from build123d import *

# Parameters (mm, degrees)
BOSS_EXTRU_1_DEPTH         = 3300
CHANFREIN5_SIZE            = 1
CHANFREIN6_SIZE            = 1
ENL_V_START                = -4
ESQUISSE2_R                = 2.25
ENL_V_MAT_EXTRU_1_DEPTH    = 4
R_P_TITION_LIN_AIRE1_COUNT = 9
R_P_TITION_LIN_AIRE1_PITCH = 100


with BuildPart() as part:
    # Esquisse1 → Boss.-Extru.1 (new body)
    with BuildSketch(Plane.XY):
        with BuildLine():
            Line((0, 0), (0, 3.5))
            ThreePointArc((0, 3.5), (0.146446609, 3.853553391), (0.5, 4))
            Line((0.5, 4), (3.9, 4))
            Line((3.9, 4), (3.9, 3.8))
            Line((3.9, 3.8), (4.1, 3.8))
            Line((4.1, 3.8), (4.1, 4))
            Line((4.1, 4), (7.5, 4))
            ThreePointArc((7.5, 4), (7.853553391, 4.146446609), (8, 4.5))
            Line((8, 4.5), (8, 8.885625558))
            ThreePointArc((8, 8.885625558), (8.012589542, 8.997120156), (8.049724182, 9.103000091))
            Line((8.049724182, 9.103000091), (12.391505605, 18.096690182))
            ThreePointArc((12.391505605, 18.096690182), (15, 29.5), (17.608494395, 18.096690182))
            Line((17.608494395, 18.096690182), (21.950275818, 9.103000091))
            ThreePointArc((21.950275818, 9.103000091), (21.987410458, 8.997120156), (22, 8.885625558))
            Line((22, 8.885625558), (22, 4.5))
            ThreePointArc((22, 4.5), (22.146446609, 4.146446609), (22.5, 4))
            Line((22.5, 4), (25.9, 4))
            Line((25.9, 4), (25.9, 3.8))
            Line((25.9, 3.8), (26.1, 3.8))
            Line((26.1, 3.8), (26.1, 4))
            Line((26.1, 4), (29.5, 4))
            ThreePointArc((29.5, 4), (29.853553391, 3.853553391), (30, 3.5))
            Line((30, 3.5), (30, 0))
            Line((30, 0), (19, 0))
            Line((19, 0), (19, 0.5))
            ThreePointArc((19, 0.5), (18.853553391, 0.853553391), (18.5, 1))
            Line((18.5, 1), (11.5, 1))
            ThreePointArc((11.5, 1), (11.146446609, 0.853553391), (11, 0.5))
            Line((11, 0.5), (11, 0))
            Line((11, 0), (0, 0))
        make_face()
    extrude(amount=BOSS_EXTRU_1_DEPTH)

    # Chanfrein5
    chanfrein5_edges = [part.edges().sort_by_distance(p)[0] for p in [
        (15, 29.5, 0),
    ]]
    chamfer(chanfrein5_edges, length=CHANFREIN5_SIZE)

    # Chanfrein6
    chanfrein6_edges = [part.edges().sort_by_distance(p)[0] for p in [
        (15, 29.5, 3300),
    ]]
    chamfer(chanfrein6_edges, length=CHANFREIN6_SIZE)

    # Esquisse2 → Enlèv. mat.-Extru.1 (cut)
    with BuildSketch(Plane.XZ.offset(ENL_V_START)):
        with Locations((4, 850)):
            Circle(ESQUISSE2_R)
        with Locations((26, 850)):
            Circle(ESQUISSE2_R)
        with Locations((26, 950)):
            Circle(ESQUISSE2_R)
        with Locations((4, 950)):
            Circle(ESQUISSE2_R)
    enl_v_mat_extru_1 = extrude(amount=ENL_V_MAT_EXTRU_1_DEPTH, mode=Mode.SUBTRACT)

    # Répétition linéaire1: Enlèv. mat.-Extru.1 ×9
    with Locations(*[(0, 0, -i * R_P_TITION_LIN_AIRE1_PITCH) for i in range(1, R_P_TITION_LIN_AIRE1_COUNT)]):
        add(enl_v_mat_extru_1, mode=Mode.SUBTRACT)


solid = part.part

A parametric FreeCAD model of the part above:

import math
import FreeCAD as App
import Part
import Sketcher
Q = App.Units.Quantity


def edges_at(feature, points):
    """Names of the edges that pass closest to the given points."""
    edges = feature.Shape.Edges
    near = lambda p: min(range(len(edges)), key=lambda i: edges[i].distToShape(Part.Vertex(*p))[0])
    return sorted({f"Edge{near(p) + 1}" for p in points})

doc = App.newDocument("Part")
body = doc.addObject("PartDesign::Body", "Body")

sketch1 = doc.addObject("Sketcher::SketchObject", "Sketch")
body.addObject(sketch1)
sketch1.AttachmentSupport = (doc.XY_Plane, [""])
sketch1.MapMode = "FlatFace"
sketch1.addGeometry(Part.LineSegment(App.Vector(0, 3.5, 0), App.Vector(0, 0, 0)), False)
sketch1.addGeometry(Part.LineSegment(App.Vector(0, 0, 0), App.Vector(11, 0, 0)), False)
sketch1.addGeometry(Part.LineSegment(App.Vector(11, 0, 0), App.Vector(11, 0.5, 0)), False)
sketch1.addGeometry(Part.ArcOfCircle(Part.Circle(App.Vector(11.5, 0.5, 0), App.Vector(0, 0, 1), 0.5), math.radians(90), math.radians(180)), False)
sketch1.addGeometry(Part.LineSegment(App.Vector(11.5, 1, 0), App.Vector(18.5, 1, 0)), False)
sketch1.addGeometry(Part.ArcOfCircle(Part.Circle(App.Vector(18.5, 0.5, 0), App.Vector(0, 0, 1), 0.5), math.radians(0), math.radians(90)), False)
sketch1.addGeometry(Part.LineSegment(App.Vector(19, 0.5, 0), App.Vector(19, 0, 0)), False)
sketch1.addGeometry(Part.LineSegment(App.Vector(19, 0, 0), App.Vector(30, 0, 0)), False)
sketch1.addGeometry(Part.LineSegment(App.Vector(30, 0, 0), App.Vector(30, 3.5, 0)), False)
sketch1.addGeometry(Part.ArcOfCircle(Part.Circle(App.Vector(29.5, 3.5, 0), App.Vector(0, 0, 1), 0.5), math.radians(0), math.radians(90)), False)
sketch1.addGeometry(Part.LineSegment(App.Vector(29.5, 4, 0), App.Vector(26.1, 4, 0)), False)
sketch1.addGeometry(Part.LineSegment(App.Vector(26.1, 4, 0), App.Vector(26.1, 3.8, 0)), False)
sketch1.addGeometry(Part.LineSegment(App.Vector(26.1, 3.8, 0), App.Vector(25.9, 3.8, 0)), False)
sketch1.addGeometry(Part.LineSegment(App.Vector(25.9, 3.8, 0), App.Vector(25.9, 4, 0)), False)
sketch1.addGeometry(Part.LineSegment(App.Vector(25.9, 4, 0), App.Vector(22.5, 4, 0)), False)
sketch1.addGeometry(Part.ArcOfCircle(Part.Circle(App.Vector(22.5, 4.5, 0), App.Vector(0, 0, 1), 0.5), math.radians(180), math.radians(270)), False)
sketch1.addGeometry(Part.LineSegment(App.Vector(22, 4.5, 0), App.Vector(22, 8.89, 0)), False)
sketch1.addGeometry(Part.ArcOfCircle(Part.Circle(App.Vector(21.5, 8.89, 0), App.Vector(0, 0, 1), 0.5), math.radians(0), math.radians(26)), False)
sketch1.addGeometry(Part.LineSegment(App.Vector(21.95, 9.1, 0), App.Vector(17.61, 18.1, 0)), False)
sketch1.addGeometry(Part.ArcOfCircle(Part.Circle(App.Vector(15, 23.5, 0), App.Vector(0, 0, 1), 6), math.radians(-64), math.radians(244)), False)
sketch1.addGeometry(Part.LineSegment(App.Vector(12.39, 18.1, 0), App.Vector(8.05, 9.1, 0)), False)
sketch1.addGeometry(Part.ArcOfCircle(Part.Circle(App.Vector(8.5, 8.89, 0), App.Vector(0, 0, 1), 0.5), math.radians(154), math.radians(180)), False)
sketch1.addGeometry(Part.LineSegment(App.Vector(8, 8.89, 0), App.Vector(8, 4.5, 0)), False)
sketch1.addGeometry(Part.ArcOfCircle(Part.Circle(App.Vector(7.5, 4.5, 0), App.Vector(0, 0, 1), 0.5), math.radians(-90), math.radians(0)), False)
sketch1.addGeometry(Part.LineSegment(App.Vector(7.5, 4, 0), App.Vector(4.1, 4, 0)), False)
sketch1.addGeometry(Part.LineSegment(App.Vector(4.1, 4, 0), App.Vector(4.1, 3.8, 0)), False)
sketch1.addGeometry(Part.LineSegment(App.Vector(4.1, 3.8, 0), App.Vector(3.9, 3.8, 0)), False)
sketch1.addGeometry(Part.LineSegment(App.Vector(3.9, 3.8, 0), App.Vector(3.9, 4, 0)), False)
sketch1.addGeometry(Part.LineSegment(App.Vector(3.9, 4, 0), App.Vector(0.5, 4, 0)), False)
sketch1.addGeometry(Part.ArcOfCircle(Part.Circle(App.Vector(0.5, 3.5, 0), App.Vector(0, 0, 1), 0.5), math.radians(90), math.radians(180)), False)
sketch1.addConstraint(Sketcher.Constraint("Coincident", 0, 2, 1, 1))
sketch1.addConstraint(Sketcher.Constraint("Coincident", 1, 2, 2, 1))
sketch1.addConstraint(Sketcher.Constraint("Tangent", 2, 2, 3, 2))
sketch1.addConstraint(Sketcher.Constraint("Tangent", 3, 1, 4, 1))
sketch1.addConstraint(Sketcher.Constraint("Tangent", 4, 2, 5, 2))
sketch1.addConstraint(Sketcher.Constraint("Tangent", 5, 1, 6, 1))
sketch1.addConstraint(Sketcher.Constraint("Coincident", 6, 2, 7, 1))
sketch1.addConstraint(Sketcher.Constraint("Coincident", 7, 2, 8, 1))
sketch1.addConstraint(Sketcher.Constraint("Tangent", 8, 2, 9, 1))
sketch1.addConstraint(Sketcher.Constraint("Tangent", 9, 2, 10, 1))
sketch1.addConstraint(Sketcher.Constraint("Coincident", 10, 2, 11, 1))
sketch1.addConstraint(Sketcher.Constraint("Coincident", 11, 2, 12, 1))
sketch1.addConstraint(Sketcher.Constraint("Coincident", 12, 2, 13, 1))
sketch1.addConstraint(Sketcher.Constraint("Coincident", 13, 2, 14, 1))
sketch1.addConstraint(Sketcher.Constraint("Tangent", 14, 2, 15, 2))
sketch1.addConstraint(Sketcher.Constraint("Tangent", 15, 1, 16, 1))
sketch1.addConstraint(Sketcher.Constraint("Tangent", 16, 2, 17, 1))
sketch1.addConstraint(Sketcher.Constraint("Tangent", 17, 2, 18, 1))
sketch1.addConstraint(Sketcher.Constraint("Coincident", 18, 2, 19, 1))
sketch1.addConstraint(Sketcher.Constraint("Coincident", 19, 2, 20, 1))
sketch1.addConstraint(Sketcher.Constraint("Tangent", 20, 2, 21, 1))
sketch1.addConstraint(Sketcher.Constraint("Tangent", 21, 2, 22, 1))
sketch1.addConstraint(Sketcher.Constraint("Tangent", 22, 2, 23, 2))
sketch1.addConstraint(Sketcher.Constraint("Tangent", 23, 1, 24, 1))
sketch1.addConstraint(Sketcher.Constraint("Coincident", 24, 2, 25, 1))
sketch1.addConstraint(Sketcher.Constraint("Coincident", 25, 2, 26, 1))
sketch1.addConstraint(Sketcher.Constraint("Coincident", 26, 2, 27, 1))
sketch1.addConstraint(Sketcher.Constraint("Coincident", 27, 2, 28, 1))
sketch1.addConstraint(Sketcher.Constraint("Tangent", 28, 2, 29, 1))
sketch1.addConstraint(Sketcher.Constraint("Tangent", 29, 2, 0, 1))
sketch1.addConstraint(Sketcher.Constraint("Vertical", 0))
sketch1.addConstraint(Sketcher.Constraint("Horizontal", 1))
sketch1.addConstraint(Sketcher.Constraint("Vertical", 2))
sketch1.addConstraint(Sketcher.Constraint("Horizontal", 4))
sketch1.addConstraint(Sketcher.Constraint("Vertical", 6))
sketch1.addConstraint(Sketcher.Constraint("Horizontal", 7))
sketch1.addConstraint(Sketcher.Constraint("Vertical", 8))
sketch1.addConstraint(Sketcher.Constraint("Horizontal", 10))
sketch1.addConstraint(Sketcher.Constraint("Vertical", 11))
sketch1.addConstraint(Sketcher.Constraint("Horizontal", 12))
sketch1.addConstraint(Sketcher.Constraint("Vertical", 13))
sketch1.addConstraint(Sketcher.Constraint("Horizontal", 14))
sketch1.addConstraint(Sketcher.Constraint("Vertical", 16))
sketch1.addConstraint(Sketcher.Constraint("Vertical", 22))
sketch1.addConstraint(Sketcher.Constraint("Horizontal", 24))
sketch1.addConstraint(Sketcher.Constraint("Vertical", 25))
sketch1.addConstraint(Sketcher.Constraint("Horizontal", 26))
sketch1.addConstraint(Sketcher.Constraint("Vertical", 27))
sketch1.addConstraint(Sketcher.Constraint("Horizontal", 28))
sketch1.addConstraint(Sketcher.Constraint("Coincident", 0, 2, -1, 1))
sketch1.addConstraint(Sketcher.Constraint("Equal", 3, 5))
sketch1.addConstraint(Sketcher.Constraint("Equal", 5, 9))
sketch1.addConstraint(Sketcher.Constraint("Equal", 9, 15))
sketch1.addConstraint(Sketcher.Constraint("Equal", 15, 17))
sketch1.addConstraint(Sketcher.Constraint("Equal", 17, 21))
sketch1.addConstraint(Sketcher.Constraint("Equal", 21, 23))
sketch1.addConstraint(Sketcher.Constraint("Equal", 23, 29))
sketch1.addConstraint(Sketcher.Constraint("PointOnObject", 6, 2, -1))
sketch1.addConstraint(Sketcher.Constraint("Horizontal", 17, 3, 21, 3))
sketch1.addConstraint(Sketcher.Constraint("Horizontal", 15, 3, 23, 3))
sketch1.addConstraint(Sketcher.Constraint("Horizontal", 9, 3, 29, 3))
sketch1.addConstraint(Sketcher.Constraint("Horizontal", 10, 2, 13, 2))
sketch1.addConstraint(Sketcher.Constraint("Horizontal", 18, 2, 19, 2))
sketch1.addConstraint(Sketcher.Constraint("Horizontal", 17, 2, 20, 2))
sketch1.addConstraint(Sketcher.Constraint("Horizontal", 12, 2, 25, 2))
sketch1.addConstraint(Sketcher.Constraint("Equal", 1, 7))
sketch1.addConstraint(Sketcher.Constraint("Equal", 10, 14))
sketch1.addConstraint(Sketcher.Constraint("Equal", 14, 24))
sketch1.addConstraint(Sketcher.Constraint("Equal", 12, 26))
sketch1.addConstraint(Sketcher.Constraint("Equal", 24, 28))
sketch1.addConstraint(Sketcher.Constraint("Equal", 26, 11))
sketch1.addConstraint(Sketcher.Constraint("Radius", 19, Q("6 mm")))
sketch1.addConstraint(Sketcher.Constraint("Radius", 3, Q("0.5 mm")))
sketch1.addConstraint(Sketcher.Constraint("DistanceX", 1, 1, 1, 2, Q("11 mm")))
sketch1.addConstraint(Sketcher.Constraint("DistanceX", 4, 1, 4, 2, Q("7 mm")))
sketch1.addConstraint(Sketcher.Constraint("DistanceX", 10, 2, 10, 1, Q("3.4 mm")))
sketch1.addConstraint(Sketcher.Constraint("DistanceX", 12, 2, 12, 1, Q("0.2 mm")))
sketch1.addConstraint(Sketcher.Constraint("DistanceY", 0, 2, 0, 1, Q("3.5 mm")))
sketch1.addConstraint(Sketcher.Constraint("DistanceY", 2, 1, 2, 2, Q("0.5 mm")))
sketch1.addConstraint(Sketcher.Constraint("DistanceY", 15, 3, 19, 3, Q("19 mm")))
sketch1.addConstraint(Sketcher.Constraint("DistanceY", -1, 1, 17, 2, Q("9.103 mm")))
sketch1.addConstraint(Sketcher.Constraint("DistanceY", 16, 1, 16, 2, Q("4.385626 mm")))
pad1 = doc.addObject("PartDesign::Pad", "Pad")
body.addObject(pad1)
pad1.Profile = sketch1
pad1.Length = 3300
doc.recompute()

chamfer = doc.addObject("PartDesign::Chamfer", "Chamfer")
body.addObject(chamfer)
chamfer.Base = (pad1, edges_at(pad1, [(15, 29.5, 0)]))
chamfer.Size = 1
doc.recompute()

chamfer2 = doc.addObject("PartDesign::Chamfer", "Chamfer001")
body.addObject(chamfer2)
chamfer2.Base = (chamfer, edges_at(chamfer, [(15, 29.5, 3300)]))
chamfer2.Size = 1

sketch2 = doc.addObject("Sketcher::SketchObject", "Sketch001")
body.addObject(sketch2)
sketch2.AttachmentSupport = (doc.XZ_Plane, [""])
sketch2.MapMode = "FlatFace"
sketch2.AttachmentOffset = App.Placement(App.Vector(0, 0, -4), App.Rotation())
sketch2.addGeometry(Part.Circle(App.Vector(4, 850, 0), App.Vector(0, 0, 1), 2.2), False)
sketch2.addGeometry(Part.Circle(App.Vector(26, 850, 0), App.Vector(0, 0, 1), 2.2), False)
sketch2.addGeometry(Part.Circle(App.Vector(26, 950, 0), App.Vector(0, 0, 1), 2.2), False)
sketch2.addGeometry(Part.Circle(App.Vector(4, 950, 0), App.Vector(0, 0, 1), 2.2), False)
sketch2.addConstraint(Sketcher.Constraint("Equal", 0, 1))
sketch2.addConstraint(Sketcher.Constraint("Equal", 1, 2))
sketch2.addConstraint(Sketcher.Constraint("Equal", 2, 3))
sketch2.addConstraint(Sketcher.Constraint("Horizontal", 0, 3, 1, 3))
sketch2.addConstraint(Sketcher.Constraint("Horizontal", 2, 3, 3, 3))
sketch2.addConstraint(Sketcher.Constraint("Vertical", 1, 3, 2, 3))
sketch2.addConstraint(Sketcher.Constraint("Vertical", 0, 3, 3, 3))
sketch2.addConstraint(Sketcher.Constraint("Diameter", 0, Q("4.5 mm")))
sketch2.addConstraint(Sketcher.Constraint("DistanceX", -1, 1, 0, 3, Q("4 mm")))
sketch2.addConstraint(Sketcher.Constraint("DistanceY", -1, 1, 0, 3, Q("850 mm")))
sketch2.addConstraint(Sketcher.Constraint("DistanceX", -1, 1, 1, 3, Q("26 mm")))
sketch2.addConstraint(Sketcher.Constraint("DistanceY", -1, 1, 2, 3, Q("950 mm")))
pocket1 = doc.addObject("PartDesign::Pocket", "Pocket")
body.addObject(pocket1)
pocket1.Profile = sketch2
pocket1.Length = 4
pocket1.Reversed = True
doc.recompute()

linearpattern = doc.addObject("PartDesign::LinearPattern", "LinearPattern")
body.addObject(linearpattern)
linearpattern.Originals = [pocket1]
linearpattern.Direction = (doc.Z_Axis, [""])
linearpattern.Mode = "offset"
linearpattern.Offset = 100
linearpattern.Occurrences = 9
linearpattern.Reversed = True
body.Tip = linearpattern

doc.recompute()
